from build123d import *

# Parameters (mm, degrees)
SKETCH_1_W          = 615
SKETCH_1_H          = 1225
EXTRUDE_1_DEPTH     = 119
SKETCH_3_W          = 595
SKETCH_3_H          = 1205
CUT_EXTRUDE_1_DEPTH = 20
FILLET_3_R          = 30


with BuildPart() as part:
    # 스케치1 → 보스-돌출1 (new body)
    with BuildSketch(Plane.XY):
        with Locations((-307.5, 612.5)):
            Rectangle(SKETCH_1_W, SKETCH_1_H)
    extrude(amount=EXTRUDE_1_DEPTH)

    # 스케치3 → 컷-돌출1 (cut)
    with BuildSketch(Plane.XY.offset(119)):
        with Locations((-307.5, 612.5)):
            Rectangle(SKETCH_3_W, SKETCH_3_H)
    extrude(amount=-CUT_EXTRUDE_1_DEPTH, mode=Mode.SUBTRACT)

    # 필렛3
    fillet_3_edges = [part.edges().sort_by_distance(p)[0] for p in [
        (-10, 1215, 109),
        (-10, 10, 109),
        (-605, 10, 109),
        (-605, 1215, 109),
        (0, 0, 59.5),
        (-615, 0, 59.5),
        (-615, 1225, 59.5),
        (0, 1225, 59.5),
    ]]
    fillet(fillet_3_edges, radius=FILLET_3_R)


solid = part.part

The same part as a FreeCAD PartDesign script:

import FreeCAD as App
import Part
import Sketcher


def edges_at(feature, points):
    """Names of the edges that pass closest to the given points."""
    edges = feature.Shape.Edges
    near = lambda p: min(range(len(edges)), key=lambda i: edges[i].distToShape(Part.Vertex(*p))[0])
    return sorted({f"Edge{near(p) + 1}" for p in points})


def add_polygon(sketch, points):
    """Adds a closed chain of lines whose ends are joined by coincident constraints."""
    first, n = sketch.GeometryCount, len(points)
    for a, b in zip(points, points[1:] + points[:1]):
        sketch.addGeometry(Part.LineSegment(App.Vector(*a, 0), App.Vector(*b, 0)), False)
    for i in range(n):
        sketch.addConstraint(Sketcher.Constraint("Coincident", first + i, 2, first + (i + 1) % n, 1))

doc = App.newDocument("Part")
params = doc.addObject("Spreadsheet::Sheet", "Params")
for row, (alias, value) in enumerate([
    ("sketch1_width", "615 mm"),
    ("sketch1_height", "1225 mm"),
    ("pad1_length", "119 mm"),
    ("sketch2_width", "595 mm"),
    ("sketch2_height", "1205 mm"),
    ("pocket1_length", "20 mm"),
    ("fillet_radius", "30 mm"),
], start=1):
    params.set(f"A{row}", alias)
    params.set(f"B{row}", "=" + value)
    params.setAlias(f"B{row}", alias)

body = doc.addObject("PartDesign::Body", "Body")

# Sketch on XY plane
sketch1 = body.newObject("Sketcher::SketchObject", "Sketch")
sketch1.AttachmentSupport = (doc.getObject("XY_Plane"), [""])
sketch1.MapMode = "FlatFace"
add_polygon(sketch1, [(-615, 1225), (-615, 0), (0, 0), (0, 1225)])  # lines 0-3
sketch1.addConstraint(Sketcher.Constraint("Vertical", 0))
sketch1.addConstraint(Sketcher.Constraint("Horizontal", 1))
sketch1.addConstraint(Sketcher.Constraint("Vertical", 2))
sketch1.addConstraint(Sketcher.Constraint("Horizontal", 3))
sketch1.addConstraint(Sketcher.Constraint("Coincident", 1, 2, -1, 1))
sketch1.addConstraint(Sketcher.Constraint("DistanceX", 1, 1, 1, 2, 615.0))
sketch1.addConstraint(Sketcher.Constraint("DistanceY", 0, 2, 0, 1, 1225.0))
sketch1.setExpression("Constraints[9]", "Params.sketch1_width")
sketch1.setExpression("Constraints[10]", "Params.sketch1_height")
pad1 = body.newObject("PartDesign::Pad", "Pad")
pad1.Profile = sketch1
pad1.setExpression("Length", "Params.pad1_length")

# Sketch on XY plane
sketch2 = body.newObject("Sketcher::SketchObject", "Sketch001")
sketch2.AttachmentSupport = (doc.getObject("XY_Plane"), [""])
sketch2.MapMode = "FlatFace"
sketch2.AttachmentOffset = App.Placement(App.Vector(0, 0, 119), App.Rotation())
add_polygon(sketch2, [(-605, 1215), (-605, 10), (-10, 10), (-10, 1215)])  # lines 0-3
sketch2.addConstraint(Sketcher.Constraint("Vertical", 0))
sketch2.addConstraint(Sketcher.Constraint("Horizontal", 1))
sketch2.addConstraint(Sketcher.Constraint("Vertical", 2))
sketch2.addConstraint(Sketcher.Constraint("Horizontal", 3))
sketch2.addConstraint(Sketcher.Constraint("DistanceX", 1, 1, 1, 2, 595.0))
sketch2.addConstraint(Sketcher.Constraint("DistanceY", 0, 2, 0, 1, 1205.0))
sketch2.addConstraint(Sketcher.Constraint("DistanceX", 0, 2, -1, 1, 605.0))
sketch2.addConstraint(Sketcher.Constraint("DistanceY", -1, 1, 0, 2, 10.0))
sketch2.setExpression("Constraints[8]", "Params.sketch2_width")
sketch2.setExpression("Constraints[9]", "Params.sketch2_height")
pocket1 = body.newObject("PartDesign::Pocket", "Pocket")
pocket1.Profile = sketch2
pocket1.setExpression("Length", "Params.pocket1_length")
doc.recompute()

fillet = body.newObject("PartDesign::Fillet", "Fillet")
fillet.Base = (pocket1, edges_at(pocket1, [
    (-10, 1215, 109),
    (-10, 10, 109),
    (-605, 10, 109),
    (-605, 1215, 109),
    (0, 0, 59.5),
    (-615, 0, 59.5),
    (-615, 1225, 59.5),
    (0, 1225, 59.5),
]))
fillet.setExpression("Radius", "Params.fillet_radius")

doc.recompute()
